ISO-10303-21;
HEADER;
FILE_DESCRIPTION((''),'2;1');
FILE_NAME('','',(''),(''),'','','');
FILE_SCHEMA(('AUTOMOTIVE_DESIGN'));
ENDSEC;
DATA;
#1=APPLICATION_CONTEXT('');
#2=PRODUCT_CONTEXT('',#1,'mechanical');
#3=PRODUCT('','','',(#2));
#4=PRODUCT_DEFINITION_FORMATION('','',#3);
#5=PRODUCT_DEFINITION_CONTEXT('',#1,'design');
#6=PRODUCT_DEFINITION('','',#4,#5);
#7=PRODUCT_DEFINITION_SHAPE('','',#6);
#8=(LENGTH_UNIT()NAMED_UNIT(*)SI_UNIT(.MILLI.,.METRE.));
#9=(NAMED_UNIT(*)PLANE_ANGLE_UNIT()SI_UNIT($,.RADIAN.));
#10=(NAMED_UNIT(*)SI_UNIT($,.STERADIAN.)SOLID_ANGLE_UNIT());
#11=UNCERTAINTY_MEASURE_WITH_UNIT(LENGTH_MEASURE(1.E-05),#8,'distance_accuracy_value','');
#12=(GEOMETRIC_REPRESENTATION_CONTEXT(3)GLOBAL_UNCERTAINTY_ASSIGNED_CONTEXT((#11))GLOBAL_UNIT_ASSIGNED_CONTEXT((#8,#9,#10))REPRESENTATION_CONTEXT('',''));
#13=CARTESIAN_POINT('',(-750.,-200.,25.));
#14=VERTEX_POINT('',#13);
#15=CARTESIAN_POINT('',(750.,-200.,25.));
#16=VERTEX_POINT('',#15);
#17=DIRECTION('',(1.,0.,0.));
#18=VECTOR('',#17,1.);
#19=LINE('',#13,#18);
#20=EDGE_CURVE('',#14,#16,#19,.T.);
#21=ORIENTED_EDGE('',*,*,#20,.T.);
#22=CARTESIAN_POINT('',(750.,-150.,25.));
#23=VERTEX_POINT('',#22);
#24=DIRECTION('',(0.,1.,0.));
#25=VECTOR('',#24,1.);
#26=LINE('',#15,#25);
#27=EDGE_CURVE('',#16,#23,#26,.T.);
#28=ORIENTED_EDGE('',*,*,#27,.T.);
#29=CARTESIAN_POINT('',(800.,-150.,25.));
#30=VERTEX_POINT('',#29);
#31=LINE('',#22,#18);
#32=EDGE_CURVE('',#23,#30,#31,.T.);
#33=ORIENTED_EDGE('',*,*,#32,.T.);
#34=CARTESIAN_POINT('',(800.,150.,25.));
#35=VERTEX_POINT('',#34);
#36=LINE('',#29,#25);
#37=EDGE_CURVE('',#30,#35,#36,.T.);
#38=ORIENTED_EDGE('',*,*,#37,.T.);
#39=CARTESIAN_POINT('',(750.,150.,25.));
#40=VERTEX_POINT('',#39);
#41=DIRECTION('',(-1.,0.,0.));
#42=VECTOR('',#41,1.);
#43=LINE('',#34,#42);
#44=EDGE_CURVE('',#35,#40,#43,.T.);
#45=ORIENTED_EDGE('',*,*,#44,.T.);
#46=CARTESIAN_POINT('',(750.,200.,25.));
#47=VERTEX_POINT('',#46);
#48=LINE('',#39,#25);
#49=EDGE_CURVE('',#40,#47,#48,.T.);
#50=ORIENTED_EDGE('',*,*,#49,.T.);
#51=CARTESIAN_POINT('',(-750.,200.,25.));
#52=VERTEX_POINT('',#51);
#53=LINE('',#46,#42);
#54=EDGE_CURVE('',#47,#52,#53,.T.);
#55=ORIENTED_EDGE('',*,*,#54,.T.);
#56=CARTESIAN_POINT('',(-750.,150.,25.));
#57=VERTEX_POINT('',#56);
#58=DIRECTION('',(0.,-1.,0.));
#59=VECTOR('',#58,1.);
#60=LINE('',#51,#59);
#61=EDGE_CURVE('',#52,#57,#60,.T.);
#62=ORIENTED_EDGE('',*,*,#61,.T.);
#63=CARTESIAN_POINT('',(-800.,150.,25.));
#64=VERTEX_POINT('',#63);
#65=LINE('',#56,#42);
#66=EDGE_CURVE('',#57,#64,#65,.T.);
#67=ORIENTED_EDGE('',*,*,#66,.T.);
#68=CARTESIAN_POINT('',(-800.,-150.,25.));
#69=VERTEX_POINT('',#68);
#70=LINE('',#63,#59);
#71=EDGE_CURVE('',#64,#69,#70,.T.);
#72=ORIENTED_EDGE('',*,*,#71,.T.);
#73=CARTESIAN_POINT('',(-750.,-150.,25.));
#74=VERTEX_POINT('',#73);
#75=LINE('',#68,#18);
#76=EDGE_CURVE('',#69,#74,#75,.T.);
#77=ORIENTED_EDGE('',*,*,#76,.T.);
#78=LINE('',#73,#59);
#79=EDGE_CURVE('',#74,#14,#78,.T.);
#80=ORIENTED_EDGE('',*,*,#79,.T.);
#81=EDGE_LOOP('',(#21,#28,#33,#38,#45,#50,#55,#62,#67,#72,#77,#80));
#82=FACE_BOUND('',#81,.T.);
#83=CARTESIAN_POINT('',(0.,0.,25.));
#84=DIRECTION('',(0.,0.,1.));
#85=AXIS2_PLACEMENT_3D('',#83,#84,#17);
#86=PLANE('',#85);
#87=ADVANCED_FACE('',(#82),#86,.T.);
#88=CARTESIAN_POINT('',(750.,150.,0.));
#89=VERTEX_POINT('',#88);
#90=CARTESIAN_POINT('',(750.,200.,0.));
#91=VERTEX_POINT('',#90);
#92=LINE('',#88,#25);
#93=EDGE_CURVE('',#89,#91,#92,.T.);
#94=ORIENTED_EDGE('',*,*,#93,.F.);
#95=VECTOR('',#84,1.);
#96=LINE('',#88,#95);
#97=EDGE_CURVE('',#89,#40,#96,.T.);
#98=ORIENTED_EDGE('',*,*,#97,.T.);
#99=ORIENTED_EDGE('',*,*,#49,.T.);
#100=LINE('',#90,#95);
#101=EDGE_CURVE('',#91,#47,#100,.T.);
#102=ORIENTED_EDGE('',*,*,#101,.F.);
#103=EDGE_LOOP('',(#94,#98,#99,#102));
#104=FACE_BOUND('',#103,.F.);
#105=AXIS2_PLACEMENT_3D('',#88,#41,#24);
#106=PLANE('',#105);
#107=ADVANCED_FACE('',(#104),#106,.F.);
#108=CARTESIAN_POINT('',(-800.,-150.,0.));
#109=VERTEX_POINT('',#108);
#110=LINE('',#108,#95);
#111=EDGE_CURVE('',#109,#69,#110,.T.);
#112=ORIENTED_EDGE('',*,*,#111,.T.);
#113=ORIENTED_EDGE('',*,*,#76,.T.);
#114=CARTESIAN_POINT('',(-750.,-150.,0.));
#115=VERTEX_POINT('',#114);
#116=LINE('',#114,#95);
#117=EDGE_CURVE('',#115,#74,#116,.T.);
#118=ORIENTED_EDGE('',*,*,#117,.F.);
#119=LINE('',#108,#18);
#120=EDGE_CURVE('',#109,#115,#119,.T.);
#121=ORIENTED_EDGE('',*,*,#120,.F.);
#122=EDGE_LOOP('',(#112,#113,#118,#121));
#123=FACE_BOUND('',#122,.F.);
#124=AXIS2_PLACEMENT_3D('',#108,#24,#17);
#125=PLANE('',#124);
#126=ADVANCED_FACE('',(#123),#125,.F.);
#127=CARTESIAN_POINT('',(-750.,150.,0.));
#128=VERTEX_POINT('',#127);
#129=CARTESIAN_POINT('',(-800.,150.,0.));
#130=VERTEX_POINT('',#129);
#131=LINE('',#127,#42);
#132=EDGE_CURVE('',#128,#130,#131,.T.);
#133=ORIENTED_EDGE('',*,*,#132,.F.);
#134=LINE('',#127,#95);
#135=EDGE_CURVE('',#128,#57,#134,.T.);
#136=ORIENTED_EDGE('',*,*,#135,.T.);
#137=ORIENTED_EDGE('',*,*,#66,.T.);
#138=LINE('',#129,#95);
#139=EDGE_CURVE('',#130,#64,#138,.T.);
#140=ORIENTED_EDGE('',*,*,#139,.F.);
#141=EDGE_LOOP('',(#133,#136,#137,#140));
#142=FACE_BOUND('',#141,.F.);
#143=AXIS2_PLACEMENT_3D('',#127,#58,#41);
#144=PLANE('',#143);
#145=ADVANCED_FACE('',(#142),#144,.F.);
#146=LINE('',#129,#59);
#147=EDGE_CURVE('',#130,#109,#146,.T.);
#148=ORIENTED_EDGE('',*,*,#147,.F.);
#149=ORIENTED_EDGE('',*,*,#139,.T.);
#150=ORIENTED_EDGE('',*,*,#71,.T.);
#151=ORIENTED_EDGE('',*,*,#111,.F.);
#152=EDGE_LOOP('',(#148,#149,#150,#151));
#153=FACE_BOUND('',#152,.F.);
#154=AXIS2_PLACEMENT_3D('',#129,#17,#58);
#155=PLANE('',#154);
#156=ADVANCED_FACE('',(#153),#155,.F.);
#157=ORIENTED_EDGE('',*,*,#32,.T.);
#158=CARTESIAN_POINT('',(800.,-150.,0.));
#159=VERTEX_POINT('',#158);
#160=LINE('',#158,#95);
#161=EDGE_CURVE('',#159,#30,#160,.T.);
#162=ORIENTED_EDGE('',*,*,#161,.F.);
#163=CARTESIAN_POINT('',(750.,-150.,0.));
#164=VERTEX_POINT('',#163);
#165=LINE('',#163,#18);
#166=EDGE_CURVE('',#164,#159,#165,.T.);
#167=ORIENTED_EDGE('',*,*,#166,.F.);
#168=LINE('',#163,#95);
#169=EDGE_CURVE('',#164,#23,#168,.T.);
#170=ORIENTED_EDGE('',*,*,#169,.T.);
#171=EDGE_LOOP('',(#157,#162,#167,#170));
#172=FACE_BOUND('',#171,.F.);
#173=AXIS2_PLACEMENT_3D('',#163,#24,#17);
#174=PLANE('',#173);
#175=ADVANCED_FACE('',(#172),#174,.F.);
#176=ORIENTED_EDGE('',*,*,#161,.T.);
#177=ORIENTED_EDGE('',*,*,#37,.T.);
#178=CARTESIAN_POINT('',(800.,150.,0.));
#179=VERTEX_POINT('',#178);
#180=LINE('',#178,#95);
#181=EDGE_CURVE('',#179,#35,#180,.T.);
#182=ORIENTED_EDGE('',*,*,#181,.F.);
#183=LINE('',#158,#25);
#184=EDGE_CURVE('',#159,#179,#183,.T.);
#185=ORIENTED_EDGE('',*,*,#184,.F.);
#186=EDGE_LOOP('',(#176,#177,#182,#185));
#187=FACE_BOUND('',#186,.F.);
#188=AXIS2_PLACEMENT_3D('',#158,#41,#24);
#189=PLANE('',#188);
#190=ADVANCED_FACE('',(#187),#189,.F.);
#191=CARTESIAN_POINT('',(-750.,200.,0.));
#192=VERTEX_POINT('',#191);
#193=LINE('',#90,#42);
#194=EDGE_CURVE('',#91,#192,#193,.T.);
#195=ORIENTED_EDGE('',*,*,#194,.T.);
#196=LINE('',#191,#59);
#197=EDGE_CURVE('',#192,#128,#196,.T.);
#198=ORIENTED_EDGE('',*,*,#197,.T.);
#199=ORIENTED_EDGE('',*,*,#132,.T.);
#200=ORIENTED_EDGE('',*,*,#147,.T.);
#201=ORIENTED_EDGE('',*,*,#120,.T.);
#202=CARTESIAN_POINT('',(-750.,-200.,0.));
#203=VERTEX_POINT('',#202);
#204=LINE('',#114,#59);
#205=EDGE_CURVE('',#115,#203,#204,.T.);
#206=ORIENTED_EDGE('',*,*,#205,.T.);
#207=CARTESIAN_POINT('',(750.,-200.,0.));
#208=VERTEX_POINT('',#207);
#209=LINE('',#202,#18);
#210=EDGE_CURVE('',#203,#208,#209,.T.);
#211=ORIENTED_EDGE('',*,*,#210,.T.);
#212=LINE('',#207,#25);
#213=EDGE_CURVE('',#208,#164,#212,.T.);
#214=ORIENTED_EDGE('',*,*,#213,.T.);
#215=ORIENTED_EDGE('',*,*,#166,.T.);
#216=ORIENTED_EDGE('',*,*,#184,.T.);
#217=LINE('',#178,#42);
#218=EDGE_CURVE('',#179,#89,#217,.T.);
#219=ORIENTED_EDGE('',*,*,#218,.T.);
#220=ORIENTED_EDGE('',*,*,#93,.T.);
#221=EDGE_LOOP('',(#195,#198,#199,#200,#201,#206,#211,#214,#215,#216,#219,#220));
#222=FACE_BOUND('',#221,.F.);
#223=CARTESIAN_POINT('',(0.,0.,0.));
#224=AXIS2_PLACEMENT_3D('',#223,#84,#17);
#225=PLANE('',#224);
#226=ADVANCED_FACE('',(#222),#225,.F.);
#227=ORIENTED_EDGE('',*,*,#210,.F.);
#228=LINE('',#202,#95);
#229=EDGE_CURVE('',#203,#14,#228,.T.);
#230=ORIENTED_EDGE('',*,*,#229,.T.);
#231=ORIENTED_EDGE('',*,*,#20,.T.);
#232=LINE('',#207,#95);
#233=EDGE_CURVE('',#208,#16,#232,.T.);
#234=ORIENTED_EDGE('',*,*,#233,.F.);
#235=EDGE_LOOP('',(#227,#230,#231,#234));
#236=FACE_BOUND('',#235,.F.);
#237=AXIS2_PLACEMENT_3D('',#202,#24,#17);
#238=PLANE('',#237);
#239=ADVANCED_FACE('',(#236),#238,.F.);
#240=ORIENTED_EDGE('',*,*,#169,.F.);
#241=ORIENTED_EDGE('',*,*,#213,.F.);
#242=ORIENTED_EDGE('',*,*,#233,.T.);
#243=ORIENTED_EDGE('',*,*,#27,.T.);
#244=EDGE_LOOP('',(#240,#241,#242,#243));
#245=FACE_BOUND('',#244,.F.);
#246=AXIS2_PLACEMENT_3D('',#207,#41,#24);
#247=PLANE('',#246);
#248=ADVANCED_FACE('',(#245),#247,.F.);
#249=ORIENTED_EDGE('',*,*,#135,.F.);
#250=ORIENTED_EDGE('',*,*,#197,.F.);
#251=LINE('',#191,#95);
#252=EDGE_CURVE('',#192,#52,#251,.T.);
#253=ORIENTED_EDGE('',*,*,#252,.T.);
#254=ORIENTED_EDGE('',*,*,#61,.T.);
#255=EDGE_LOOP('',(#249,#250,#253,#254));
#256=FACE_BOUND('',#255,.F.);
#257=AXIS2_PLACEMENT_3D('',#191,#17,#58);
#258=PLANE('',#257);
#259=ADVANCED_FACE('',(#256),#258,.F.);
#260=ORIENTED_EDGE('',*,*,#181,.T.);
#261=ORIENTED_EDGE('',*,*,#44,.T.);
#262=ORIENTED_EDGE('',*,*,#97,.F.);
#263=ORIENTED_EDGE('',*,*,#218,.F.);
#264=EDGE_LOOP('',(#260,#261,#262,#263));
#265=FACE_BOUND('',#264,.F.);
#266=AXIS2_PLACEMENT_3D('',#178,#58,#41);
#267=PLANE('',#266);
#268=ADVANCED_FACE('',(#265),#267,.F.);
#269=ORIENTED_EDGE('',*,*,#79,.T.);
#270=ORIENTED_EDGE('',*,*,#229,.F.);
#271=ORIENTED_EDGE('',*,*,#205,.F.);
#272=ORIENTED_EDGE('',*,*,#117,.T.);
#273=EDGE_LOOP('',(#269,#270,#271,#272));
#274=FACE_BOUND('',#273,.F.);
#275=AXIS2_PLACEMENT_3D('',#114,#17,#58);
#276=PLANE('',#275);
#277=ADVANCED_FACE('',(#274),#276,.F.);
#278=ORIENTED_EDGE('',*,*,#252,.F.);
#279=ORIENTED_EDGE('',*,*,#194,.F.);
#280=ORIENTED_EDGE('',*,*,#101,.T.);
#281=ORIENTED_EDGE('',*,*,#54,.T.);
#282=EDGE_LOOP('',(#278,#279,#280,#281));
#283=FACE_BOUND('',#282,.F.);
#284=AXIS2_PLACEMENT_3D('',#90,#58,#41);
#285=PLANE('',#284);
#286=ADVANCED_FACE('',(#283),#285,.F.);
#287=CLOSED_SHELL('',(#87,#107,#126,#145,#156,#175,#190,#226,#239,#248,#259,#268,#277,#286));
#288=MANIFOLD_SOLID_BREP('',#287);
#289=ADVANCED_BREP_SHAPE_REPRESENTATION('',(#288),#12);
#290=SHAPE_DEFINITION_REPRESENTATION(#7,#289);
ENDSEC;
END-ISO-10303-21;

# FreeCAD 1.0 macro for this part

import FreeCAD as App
import Part
import Sketcher

V = App.Vector

doc = App.newDocument("Part")
body = doc.addObject("PartDesign::Body", "Body")

# Sketch on XY plane
sketch1 = body.newObject("Sketcher::SketchObject", "Sketch")
sketch1.AttachmentSupport = (doc.getObject("XY_Plane"), [""])
sketch1.MapMode = "FlatFace"
sketch1.addGeometry([
    Part.LineSegment(V(-800, 150, 0), V(-800, -150, 0)),  # 0
    Part.LineSegment(V(-800, -150, 0), V(-750, -150, 0)),  # 1
    Part.LineSegment(V(-750, -150, 0), V(-750, -200, 0)),  # 2
    Part.LineSegment(V(-750, -200, 0), V(750, -200, 0)),  # 3
    Part.LineSegment(V(750, -200, 0), V(750, -150, 0)),  # 4
    Part.LineSegment(V(750, -150, 0), V(800, -150, 0)),  # 5
    Part.LineSegment(V(800, -150, 0), V(800, 150, 0)),  # 6
    Part.LineSegment(V(800, 150, 0), V(750, 150, 0)),  # 7
    Part.LineSegment(V(750, 150, 0), V(750, 200, 0)),  # 8
    Part.LineSegment(V(750, 200, 0), V(-750, 200, 0)),  # 9
    Part.LineSegment(V(-750, 200, 0), V(-750, 150, 0)),  # 10
    Part.LineSegment(V(-750, 150, 0), V(-800, 150, 0)),  # 11
], False)
sketch1.addConstraint([
    Sketcher.Constraint("Coincident", 0, 2, 1, 1),
    Sketcher.Constraint("Coincident", 1, 2, 2, 1),
    Sketcher.Constraint("Coincident", 2, 2, 3, 1),
    Sketcher.Constraint("Coincident", 3, 2, 4, 1),
    Sketcher.Constraint("Coincident", 4, 2, 5, 1),
    Sketcher.Constraint("Coincident", 5, 2, 6, 1),
    Sketcher.Constraint("Coincident", 6, 2, 7, 1),
    Sketcher.Constraint("Coincident", 7, 2, 8, 1),
    Sketcher.Constraint("Coincident", 8, 2, 9, 1),
    Sketcher.Constraint("Coincident", 9, 2, 10, 1),
    Sketcher.Constraint("Coincident", 10, 2, 11, 1),
    Sketcher.Constraint("Coincident", 11, 2, 0, 1),
    Sketcher.Constraint("Vertical", 0),
    Sketcher.Constraint("Horizontal", 1),
    Sketcher.Constraint("Vertical", 2),
    Sketcher.Constraint("Horizontal", 3),
    Sketcher.Constraint("Vertical", 4),
    Sketcher.Constraint("Horizontal", 5),
    Sketcher.Constraint("Vertical", 6),
    Sketcher.Constraint("Horizontal", 7),
    Sketcher.Constraint("Vertical", 8),
    Sketcher.Constraint("Horizontal", 9),
    Sketcher.Constraint("Vertical", 10),
    Sketcher.Constraint("Horizontal", 11),
    Sketcher.Constraint("Symmetric", 0, 2, 6, 2, -1, 1),
    Sketcher.Constraint("Symmetric", 2, 2, 8, 2, -1, 1),
    Sketcher.Constraint("Symmetric", 4, 2, 10, 2, -1, 1),
    Sketcher.Constraint("Symmetric", 1, 2, 4, 2, -2),
    Sketcher.Constraint("Equal", 11, 2),
    Sketcher.Constraint("DistanceX", 1, 1, 1, 2, 50.0),
    Sketcher.Constraint("DistanceX", 3, 1, 3, 2, 1500.0),
    Sketcher.Constraint("DistanceY", 0, 2, 0, 1, 300.0),
])
pad1 = body.newObject("PartDesign::Pad", "Pad")
pad1.Profile = sketch1
pad1.Length = 25

doc.recompute()
